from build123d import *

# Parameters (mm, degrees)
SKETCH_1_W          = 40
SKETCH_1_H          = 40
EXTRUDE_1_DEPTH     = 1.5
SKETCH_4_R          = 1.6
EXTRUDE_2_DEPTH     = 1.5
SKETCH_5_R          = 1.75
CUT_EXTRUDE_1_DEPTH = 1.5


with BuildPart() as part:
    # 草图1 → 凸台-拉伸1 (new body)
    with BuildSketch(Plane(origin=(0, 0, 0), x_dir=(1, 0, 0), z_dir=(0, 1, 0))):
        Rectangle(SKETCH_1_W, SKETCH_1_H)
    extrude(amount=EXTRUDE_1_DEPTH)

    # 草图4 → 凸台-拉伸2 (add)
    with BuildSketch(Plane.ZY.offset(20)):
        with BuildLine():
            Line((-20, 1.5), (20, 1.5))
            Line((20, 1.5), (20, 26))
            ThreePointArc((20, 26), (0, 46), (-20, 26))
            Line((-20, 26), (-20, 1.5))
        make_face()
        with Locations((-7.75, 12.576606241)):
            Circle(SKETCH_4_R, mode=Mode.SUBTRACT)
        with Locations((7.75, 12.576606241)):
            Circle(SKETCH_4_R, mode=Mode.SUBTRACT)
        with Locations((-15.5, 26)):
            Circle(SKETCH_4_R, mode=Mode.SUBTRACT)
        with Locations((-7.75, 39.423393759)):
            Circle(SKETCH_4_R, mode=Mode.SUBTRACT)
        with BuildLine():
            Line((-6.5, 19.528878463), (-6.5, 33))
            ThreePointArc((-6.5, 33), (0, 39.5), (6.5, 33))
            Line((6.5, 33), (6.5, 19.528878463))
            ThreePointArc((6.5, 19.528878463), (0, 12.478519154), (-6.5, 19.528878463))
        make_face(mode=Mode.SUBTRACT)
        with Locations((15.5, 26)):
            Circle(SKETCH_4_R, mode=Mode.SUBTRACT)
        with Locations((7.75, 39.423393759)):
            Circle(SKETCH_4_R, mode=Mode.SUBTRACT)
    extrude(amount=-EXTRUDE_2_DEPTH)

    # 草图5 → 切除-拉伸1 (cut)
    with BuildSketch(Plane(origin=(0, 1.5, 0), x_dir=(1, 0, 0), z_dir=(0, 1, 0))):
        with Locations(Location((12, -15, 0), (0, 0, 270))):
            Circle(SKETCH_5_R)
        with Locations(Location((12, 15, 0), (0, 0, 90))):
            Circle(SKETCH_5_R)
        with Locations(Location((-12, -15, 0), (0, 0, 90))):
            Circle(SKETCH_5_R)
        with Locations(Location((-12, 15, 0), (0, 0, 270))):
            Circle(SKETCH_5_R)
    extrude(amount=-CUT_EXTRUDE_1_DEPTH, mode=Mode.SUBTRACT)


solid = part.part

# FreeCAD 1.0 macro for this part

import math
import FreeCAD as App
import Part
import Sketcher
from FreeCAD import Vector


def add_polygon(sketch, points):
    """Adds a closed chain of lines whose ends are joined by coincident constraints."""
    first, n = sketch.GeometryCount, len(points)
    for a, b in zip(points, points[1:] + points[:1]):
        sketch.addGeometry(Part.LineSegment(App.Vector(*a, 0), App.Vector(*b, 0)), False)
    for i in range(n):
        sketch.addConstraint(Sketcher.Constraint("Coincident", first + i, 2, first + (i + 1) % n, 1))

doc = App.newDocument("Part")
params = doc.addObject("Spreadsheet::Sheet", "Params")
for row, (alias, value) in enumerate([
    ("sketch1_width", "40 mm"),
    ("pad1_length", "1.5 mm"),
    ("sketch2_radius", "20 mm"),
    ("sketch2_diameter", "3.2 mm"),
    ("sketch2_radius2", "6.5 mm"),
    ("sketch2_width", "24.5 mm"),
    ("pad2_length", "1.5 mm"),
    ("sketch3_diameter", "3.5 mm"),
    ("pocket1_length", "1.5 mm"),
], start=1):
    params.set(f"A{row}", alias)
    params.set(f"B{row}", "=" + value)
    params.setAlias(f"B{row}", alias)

body = doc.addObject("PartDesign::Body", "Body")

# Sketch on XZ plane
sketch1 = body.newObject("Sketcher::SketchObject", "Sketch")
sketch1.AttachmentSupport = (doc.getObject("XZ_Plane"), [""])
sketch1.MapMode = "FlatFace"
add_polygon(sketch1, [(-20, -20), (-20, 20), (20, 20), (20, -20)])  # lines 0-3
sketch1.addConstraint(Sketcher.Constraint("Vertical", 0))
sketch1.addConstraint(Sketcher.Constraint("Horizontal", 1))
sketch1.addConstraint(Sketcher.Constraint("Vertical", 2))
sketch1.addConstraint(Sketcher.Constraint("Horizontal", 3))
sketch1.addConstraint(Sketcher.Constraint("Symmetric", 0, 2, 2, 2, -1, 1))
sketch1.addConstraint(Sketcher.Constraint("Equal", 3, 0))
sketch1.addConstraint(Sketcher.Constraint("DistanceX", 1, 1, 1, 2, 40.0))
sketch1.setExpression("Constraints[10]", "Params.sketch1_width")
pad1 = body.newObject("PartDesign::Pad", "Pad")
pad1.Profile = sketch1
pad1.setExpression("Length", "Params.pad1_length")
pad1.Reversed = True

# Sketch on YZ plane
sketch2 = body.newObject("Sketcher::SketchObject", "Sketch001")
sketch2.AttachmentSupport = (doc.getObject("YZ_Plane"), [""])
sketch2.MapMode = "FlatFace"
sketch2.AttachmentOffset = App.Placement(Vector(0, 0, -20), App.Rotation())
sketch2.addGeometry(Part.LineSegment(Vector(1.5, -20, 0), Vector(1.5, 20, 0)), False)
sketch2.addGeometry(Part.LineSegment(Vector(1.5, 20, 0), Vector(26, 20, 0)), False)
sketch2.addGeometry(Part.ArcOfCircle(Part.Circle(Vector(26, 0, 0), Vector(0, 0, 1), 20), math.radians(-90), math.radians(90)), False)
sketch2.addGeometry(Part.LineSegment(Vector(26, -20, 0), Vector(1.5, -20, 0)), False)
sketch2.addGeometry(Part.Circle(Vector(12.6, -7.8, 0), Vector(0, 0, 1), 1.6), False)
sketch2.addGeometry(Part.Circle(Vector(26, -15.5, 0), Vector(0, 0, 1), 1.6), False)
sketch2.addGeometry(Part.Circle(Vector(12.6, 7.8, 0), Vector(0, 0, 1), 1.6), False)
sketch2.addGeometry(Part.ArcOfCircle(Part.Circle(Vector(19, 0, 0), Vector(0, 0, 1), 6.5), math.radians(85), math.radians(275)), False)
sketch2.addGeometry(Part.LineSegment(Vector(19.5, -6.5, 0), Vector(33, -6.5, 0)), False)
sketch2.addGeometry(Part.ArcOfCircle(Part.Circle(Vector(33, 0, 0), Vector(0, 0, 1), 6.5), math.radians(-90), math.radians(90)), False)
sketch2.addGeometry(Part.LineSegment(Vector(33, 6.5, 0), Vector(19.5, 6.5, 0)), False)
sketch2.addGeometry(Part.Circle(Vector(26, 15.5, 0), Vector(0, 0, 1), 1.6), False)
sketch2.addGeometry(Part.Circle(Vector(39.4, -7.8, 0), Vector(0, 0, 1), 1.6), False)
sketch2.addGeometry(Part.Circle(Vector(39.4, 7.8, 0), Vector(0, 0, 1), 1.6), False)
sketch2.addConstraint(Sketcher.Constraint("Coincident", 0, 2, 1, 1))
sketch2.addConstraint(Sketcher.Constraint("Tangent", 1, 2, 2, 2))
sketch2.addConstraint(Sketcher.Constraint("Tangent", 2, 1, 3, 1))
sketch2.addConstraint(Sketcher.Constraint("Coincident", 3, 2, 0, 1))
sketch2.addConstraint(Sketcher.Constraint("Coincident", 7, 2, 8, 1))
sketch2.addConstraint(Sketcher.Constraint("Tangent", 8, 2, 9, 1))
sketch2.addConstraint(Sketcher.Constraint("Tangent", 9, 2, 10, 1))
sketch2.addConstraint(Sketcher.Constraint("Coincident", 10, 2, 7, 1))
sketch2.addConstraint(Sketcher.Constraint("Vertical", 0))
sketch2.addConstraint(Sketcher.Constraint("Horizontal", 1))
sketch2.addConstraint(Sketcher.Constraint("Horizontal", 3))
sketch2.addConstraint(Sketcher.Constraint("Horizontal", 8))
sketch2.addConstraint(Sketcher.Constraint("Horizontal", 10))
sketch2.addConstraint(Sketcher.Constraint("Equal", 4, 5))
sketch2.addConstraint(Sketcher.Constraint("Equal", 5, 6))
sketch2.addConstraint(Sketcher.Constraint("Equal", 6, 11))
sketch2.addConstraint(Sketcher.Constraint("Equal", 11, 12))
sketch2.addConstraint(Sketcher.Constraint("Equal", 12, 13))
sketch2.addConstraint(Sketcher.Constraint("Symmetric", 4, 3, 6, 3, -1))
sketch2.addConstraint(Sketcher.Constraint("Symmetric", 5, 3, 11, 3, -1))
sketch2.addConstraint(Sketcher.Constraint("Symmetric", 12, 3, 13, 3, -1))
sketch2.addConstraint(Sketcher.Constraint("Symmetric", 7, 2, 10, 2, -1))
sketch2.addConstraint(Sketcher.Constraint("PointOnObject", 2, 3, -1))
sketch2.addConstraint(Sketcher.Constraint("Horizontal", 4, 3, 12, 3))
sketch2.addConstraint(Sketcher.Constraint("Vertical", 2, 3, 5, 3))
sketch2.addConstraint(Sketcher.Constraint("Radius", 2, 20.0))
sketch2.addConstraint(Sketcher.Constraint("Diameter", 4, 3.2))
sketch2.addConstraint(Sketcher.Constraint("Radius", 9, 6.5))
sketch2.addConstraint(Sketcher.Constraint("DistanceX", 1, 1, 1, 2, 24.5))
sketch2.addConstraint(Sketcher.Constraint("DistanceX", -1, 1, 2, 3, 26.0))
sketch2.addConstraint(Sketcher.Constraint("DistanceX", -1, 1, 7, 3, 19.0))
sketch2.addConstraint(Sketcher.Constraint("DistanceX", -1, 1, 9, 3, 33.0))
sketch2.addConstraint(Sketcher.Constraint("DistanceY", 5, 3, 7, 2, 9.0))
sketch2.addConstraint(Sketcher.Constraint("DistanceY", 4, 3, 6, 3, 15.5))
sketch2.addConstraint(Sketcher.Constraint("Radius", 7, 6.521481))
sketch2.addConstraint(Sketcher.Constraint("DistanceX", -1, 1, 4, 3, 12.576606))
sketch2.addConstraint(Sketcher.Constraint("DistanceX", -1, 1, 12, 3, 39.423394))
sketch2.setExpression("Constraints[25]", "Params.sketch2_radius")
sketch2.setExpression("Constraints[26]", "Params.sketch2_diameter")
sketch2.setExpression("Constraints[27]", "Params.sketch2_radius2")
sketch2.setExpression("Constraints[28]", "Params.sketch2_width")
pad2 = body.newObject("PartDesign::Pad", "Pad001")
pad2.Profile = sketch2
pad2.setExpression("Length", "Params.pad2_length")

# Sketch on XZ plane
sketch3 = body.newObject("Sketcher::SketchObject", "Sketch002")
sketch3.AttachmentSupport = (doc.getObject("XZ_Plane"), [""])
sketch3.MapMode = "FlatFace"
sketch3.AttachmentOffset = App.Placement(Vector(0, 0, -1.5), App.Rotation())
sketch3.addGeometry(Part.Circle(Vector(12, 15, 0), Vector(0, 0, 1), 1.8), False)
sketch3.addGeometry(Part.Circle(Vector(12, -15, 0), Vector(0, 0, 1), 1.8), False)
sketch3.addGeometry(Part.Circle(Vector(-12, 15, 0), Vector(0, 0, 1), 1.8), False)
sketch3.addGeometry(Part.Circle(Vector(-12, -15, 0), Vector(0, 0, 1), 1.8), False)
sketch3.addConstraint(Sketcher.Constraint("Equal", 0, 1))
sketch3.addConstraint(Sketcher.Constraint("Equal", 1, 2))
sketch3.addConstraint(Sketcher.Constraint("Equal", 2, 3))
sketch3.addConstraint(Sketcher.Constraint("Symmetric", 1, 3, 2, 3, -1, 1))
sketch3.addConstraint(Sketcher.Constraint("Symmetric", 0, 3, 3, 3, -1, 1))
sketch3.addConstraint(Sketcher.Constraint("Symmetric", 0, 3, 2, 3, -2))
sketch3.addConstraint(Sketcher.Constraint("Diameter", 0, 3.5))
sketch3.addConstraint(Sketcher.Constraint("DistanceX", -1, 1, 0, 3, 12.0))
sketch3.addConstraint(Sketcher.Constraint("DistanceY", -1, 1, 0, 3, 15.0))
sketch3.setExpression("Constraints[6]", "Params.sketch3_diameter")
pocket1 = body.newObject("PartDesign::Pocket", "Pocket")
pocket1.Profile = sketch3
pocket1.setExpression("Length", "Params.pocket1_length")
pocket1.Reversed = True

doc.recompute()
